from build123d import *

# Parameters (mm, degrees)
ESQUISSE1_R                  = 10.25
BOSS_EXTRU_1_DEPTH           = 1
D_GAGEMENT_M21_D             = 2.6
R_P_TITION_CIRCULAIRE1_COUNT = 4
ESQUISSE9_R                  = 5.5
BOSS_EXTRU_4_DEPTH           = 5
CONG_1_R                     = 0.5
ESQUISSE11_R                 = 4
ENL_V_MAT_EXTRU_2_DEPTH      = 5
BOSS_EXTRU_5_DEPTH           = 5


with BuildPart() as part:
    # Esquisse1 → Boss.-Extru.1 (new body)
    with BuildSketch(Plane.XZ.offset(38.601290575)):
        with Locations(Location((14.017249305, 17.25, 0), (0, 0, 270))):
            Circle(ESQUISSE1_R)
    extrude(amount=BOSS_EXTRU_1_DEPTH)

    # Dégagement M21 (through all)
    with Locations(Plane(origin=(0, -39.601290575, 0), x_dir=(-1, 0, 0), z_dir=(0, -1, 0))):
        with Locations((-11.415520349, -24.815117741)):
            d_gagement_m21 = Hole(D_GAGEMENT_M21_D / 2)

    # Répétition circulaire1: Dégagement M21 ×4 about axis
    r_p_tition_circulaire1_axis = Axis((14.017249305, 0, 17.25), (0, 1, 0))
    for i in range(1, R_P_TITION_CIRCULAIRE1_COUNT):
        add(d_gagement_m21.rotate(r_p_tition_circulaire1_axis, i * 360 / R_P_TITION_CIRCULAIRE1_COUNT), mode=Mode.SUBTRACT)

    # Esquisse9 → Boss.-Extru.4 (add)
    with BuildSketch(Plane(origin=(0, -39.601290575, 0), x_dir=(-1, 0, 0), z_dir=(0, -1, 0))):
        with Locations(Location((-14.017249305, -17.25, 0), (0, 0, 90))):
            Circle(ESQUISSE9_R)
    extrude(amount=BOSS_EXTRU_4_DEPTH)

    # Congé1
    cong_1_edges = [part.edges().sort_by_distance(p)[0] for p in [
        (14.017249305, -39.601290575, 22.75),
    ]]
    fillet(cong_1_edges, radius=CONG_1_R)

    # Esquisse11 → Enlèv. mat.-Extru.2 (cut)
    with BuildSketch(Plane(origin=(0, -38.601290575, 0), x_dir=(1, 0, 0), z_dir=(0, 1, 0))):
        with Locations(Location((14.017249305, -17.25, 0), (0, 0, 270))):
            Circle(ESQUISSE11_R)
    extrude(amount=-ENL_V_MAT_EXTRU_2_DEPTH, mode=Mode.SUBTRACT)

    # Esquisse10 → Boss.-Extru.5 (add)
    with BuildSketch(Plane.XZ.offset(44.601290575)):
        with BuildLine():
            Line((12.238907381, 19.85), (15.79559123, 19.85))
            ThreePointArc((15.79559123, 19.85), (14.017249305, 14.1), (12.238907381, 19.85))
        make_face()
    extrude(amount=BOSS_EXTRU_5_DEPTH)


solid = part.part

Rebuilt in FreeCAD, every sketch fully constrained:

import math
import FreeCAD as App
import Part
import Sketcher


def edges_at(feature, points):
    """Names of the edges that pass closest to the given points."""
    edges = feature.Shape.Edges
    near = lambda p: min(range(len(edges)), key=lambda i: edges[i].distToShape(Part.Vertex(*p))[0])
    return sorted({f"Edge{near(p) + 1}" for p in points})

doc = App.newDocument("Part")
body = doc.addObject("PartDesign::Body", "Body")

sketch1 = body.newObject("Sketcher::SketchObject", "Sketch")
sketch1.AttachmentSupport = (doc.getObject("XZ_Plane"), [""])
sketch1.MapMode = "FlatFace"
sketch1.AttachmentOffset = App.Placement(App.Vector(0, 0, 38.601291), App.Rotation())
sketch1.addGeometry(Part.Circle(App.Vector(14, 17, 0), App.Vector(0, 0, 1), 10), False)
sketch1.addConstraint(Sketcher.Constraint("Diameter", 0, 20.5))
sketch1.addConstraint(Sketcher.Constraint("DistanceY", -1, 1, 0, 3, 17.25))
sketch1.addConstraint(Sketcher.Constraint("DistanceX", -1, 1, 0, 3, 14.017249))
pad1 = body.newObject("PartDesign::Pad", "Pad")
pad1.Profile = sketch1
pad1.Length = 1

sketch2 = body.newObject("Sketcher::SketchObject", "Sketch001")
sketch2.AttachmentSupport = (doc.getObject("XZ_Plane"), [""])
sketch2.MapMode = "FlatFace"
sketch2.AttachmentOffset = App.Placement(App.Vector(0, 0, 39.601291), App.Rotation())
sketch2.addGeometry(Part.Circle(App.Vector(11.4, 24.8, 0), App.Vector(0, 0, 1), 1.3), False)
sketch2.addConstraint(Sketcher.Constraint("Diameter", 0, 2.6))
sketch2.addConstraint(Sketcher.Constraint("DistanceX", -1, 1, 0, 3, 11.41552))
sketch2.addConstraint(Sketcher.Constraint("DistanceY", -1, 1, 0, 3, 24.815118))
doc.recompute()
hole = body.newObject("PartDesign::Hole", "Hole")
hole.Profile = sketch2
hole.ThreadType = "None"
hole.Diameter = 2.6
hole.DepthType = "ThroughAll"
doc.recompute()

datumline = body.newObject("PartDesign::Line", "DatumLine")
datumline.Placement = App.Placement(App.Vector(14.017249, 0, 17.25), App.Rotation(App.Vector(0, 0, 1), App.Vector(0, 1, 0)))
polarpattern = body.newObject("PartDesign::PolarPattern", "PolarPattern")
polarpattern.Originals = [hole]
polarpattern.Axis = (datumline, [""])
polarpattern.Angle = 360
polarpattern.Occurrences = 4
body.Tip = polarpattern

sketch3 = body.newObject("Sketcher::SketchObject", "Sketch002")
sketch3.AttachmentSupport = (doc.getObject("XZ_Plane"), [""])
sketch3.MapMode = "FlatFace"
sketch3.AttachmentOffset = App.Placement(App.Vector(0, 0, 39.601291), App.Rotation())
sketch3.addGeometry(Part.Circle(App.Vector(14, 17, 0), App.Vector(0, 0, 1), 6), False)
sketch3.addConstraint(Sketcher.Constraint("Diameter", 0, 11.0))
sketch3.addConstraint(Sketcher.Constraint("DistanceY", -1, 1, 0, 3, 17.25))
sketch3.addConstraint(Sketcher.Constraint("DistanceX", -1, 1, 0, 3, 14.017249))
pad2 = body.newObject("PartDesign::Pad", "Pad001")
pad2.Profile = sketch3
pad2.Length = 5
doc.recompute()

fillet = body.newObject("PartDesign::Fillet", "Fillet")
fillet.Base = (pad2, edges_at(pad2, [(14.017, -39.601, 22.75)]))
fillet.Radius = 0.5

sketch4 = body.newObject("Sketcher::SketchObject", "Sketch003")
sketch4.AttachmentSupport = (doc.getObject("XZ_Plane"), [""])
sketch4.MapMode = "FlatFace"
sketch4.AttachmentOffset = App.Placement(App.Vector(0, 0, 38.601291), App.Rotation())
sketch4.addGeometry(Part.Circle(App.Vector(14, 17.2, 0), App.Vector(0, 0, 1), 4), False)
sketch4.addConstraint(Sketcher.Constraint("Diameter", 0, 8.0))
sketch4.addConstraint(Sketcher.Constraint("DistanceY", -1, 1, 0, 3, 17.25))
sketch4.addConstraint(Sketcher.Constraint("DistanceX", -1, 1, 0, 3, 14.017249))
pocket1 = body.newObject("PartDesign::Pocket", "Pocket")
pocket1.Profile = sketch4
pocket1.Length = 5
pocket1.Reversed = True

sketch5 = body.newObject("Sketcher::SketchObject", "Sketch004")
sketch5.AttachmentSupport = (doc.getObject("XZ_Plane"), [""])
sketch5.MapMode = "FlatFace"
sketch5.AttachmentOffset = App.Placement(App.Vector(0, 0, 44.601291), App.Rotation())
sketch5.addGeometry(Part.LineSegment(App.Vector(15.8, 19.9, 0), App.Vector(12.2, 19.9, 0)), False)
sketch5.addGeometry(Part.ArcOfCircle(Part.Circle(App.Vector(14, 17.2, 0), App.Vector(0, 0, 1), 3.1), math.radians(124), math.radians(416)), False)
sketch5.addConstraint(Sketcher.Constraint("Coincident", 0, 1, 1, 2))
sketch5.addConstraint(Sketcher.Constraint("Coincident", 1, 1, 0, 2))
sketch5.addConstraint(Sketcher.Constraint("Horizontal", 0))
sketch5.addConstraint(Sketcher.Constraint("Radius", 1, 3.15))
sketch5.addConstraint(Sketcher.Constraint("DistanceY", 1, 3, 0, 1, 2.6))
sketch5.addConstraint(Sketcher.Constraint("DistanceY", -1, 1, 1, 3, 17.25))
sketch5.addConstraint(Sketcher.Constraint("DistanceX", -1, 1, 1, 3, 14.017249))
pad3 = body.newObject("PartDesign::Pad", "Pad002")
pad3.Profile = sketch5
pad3.Length = 5

doc.recompute()
